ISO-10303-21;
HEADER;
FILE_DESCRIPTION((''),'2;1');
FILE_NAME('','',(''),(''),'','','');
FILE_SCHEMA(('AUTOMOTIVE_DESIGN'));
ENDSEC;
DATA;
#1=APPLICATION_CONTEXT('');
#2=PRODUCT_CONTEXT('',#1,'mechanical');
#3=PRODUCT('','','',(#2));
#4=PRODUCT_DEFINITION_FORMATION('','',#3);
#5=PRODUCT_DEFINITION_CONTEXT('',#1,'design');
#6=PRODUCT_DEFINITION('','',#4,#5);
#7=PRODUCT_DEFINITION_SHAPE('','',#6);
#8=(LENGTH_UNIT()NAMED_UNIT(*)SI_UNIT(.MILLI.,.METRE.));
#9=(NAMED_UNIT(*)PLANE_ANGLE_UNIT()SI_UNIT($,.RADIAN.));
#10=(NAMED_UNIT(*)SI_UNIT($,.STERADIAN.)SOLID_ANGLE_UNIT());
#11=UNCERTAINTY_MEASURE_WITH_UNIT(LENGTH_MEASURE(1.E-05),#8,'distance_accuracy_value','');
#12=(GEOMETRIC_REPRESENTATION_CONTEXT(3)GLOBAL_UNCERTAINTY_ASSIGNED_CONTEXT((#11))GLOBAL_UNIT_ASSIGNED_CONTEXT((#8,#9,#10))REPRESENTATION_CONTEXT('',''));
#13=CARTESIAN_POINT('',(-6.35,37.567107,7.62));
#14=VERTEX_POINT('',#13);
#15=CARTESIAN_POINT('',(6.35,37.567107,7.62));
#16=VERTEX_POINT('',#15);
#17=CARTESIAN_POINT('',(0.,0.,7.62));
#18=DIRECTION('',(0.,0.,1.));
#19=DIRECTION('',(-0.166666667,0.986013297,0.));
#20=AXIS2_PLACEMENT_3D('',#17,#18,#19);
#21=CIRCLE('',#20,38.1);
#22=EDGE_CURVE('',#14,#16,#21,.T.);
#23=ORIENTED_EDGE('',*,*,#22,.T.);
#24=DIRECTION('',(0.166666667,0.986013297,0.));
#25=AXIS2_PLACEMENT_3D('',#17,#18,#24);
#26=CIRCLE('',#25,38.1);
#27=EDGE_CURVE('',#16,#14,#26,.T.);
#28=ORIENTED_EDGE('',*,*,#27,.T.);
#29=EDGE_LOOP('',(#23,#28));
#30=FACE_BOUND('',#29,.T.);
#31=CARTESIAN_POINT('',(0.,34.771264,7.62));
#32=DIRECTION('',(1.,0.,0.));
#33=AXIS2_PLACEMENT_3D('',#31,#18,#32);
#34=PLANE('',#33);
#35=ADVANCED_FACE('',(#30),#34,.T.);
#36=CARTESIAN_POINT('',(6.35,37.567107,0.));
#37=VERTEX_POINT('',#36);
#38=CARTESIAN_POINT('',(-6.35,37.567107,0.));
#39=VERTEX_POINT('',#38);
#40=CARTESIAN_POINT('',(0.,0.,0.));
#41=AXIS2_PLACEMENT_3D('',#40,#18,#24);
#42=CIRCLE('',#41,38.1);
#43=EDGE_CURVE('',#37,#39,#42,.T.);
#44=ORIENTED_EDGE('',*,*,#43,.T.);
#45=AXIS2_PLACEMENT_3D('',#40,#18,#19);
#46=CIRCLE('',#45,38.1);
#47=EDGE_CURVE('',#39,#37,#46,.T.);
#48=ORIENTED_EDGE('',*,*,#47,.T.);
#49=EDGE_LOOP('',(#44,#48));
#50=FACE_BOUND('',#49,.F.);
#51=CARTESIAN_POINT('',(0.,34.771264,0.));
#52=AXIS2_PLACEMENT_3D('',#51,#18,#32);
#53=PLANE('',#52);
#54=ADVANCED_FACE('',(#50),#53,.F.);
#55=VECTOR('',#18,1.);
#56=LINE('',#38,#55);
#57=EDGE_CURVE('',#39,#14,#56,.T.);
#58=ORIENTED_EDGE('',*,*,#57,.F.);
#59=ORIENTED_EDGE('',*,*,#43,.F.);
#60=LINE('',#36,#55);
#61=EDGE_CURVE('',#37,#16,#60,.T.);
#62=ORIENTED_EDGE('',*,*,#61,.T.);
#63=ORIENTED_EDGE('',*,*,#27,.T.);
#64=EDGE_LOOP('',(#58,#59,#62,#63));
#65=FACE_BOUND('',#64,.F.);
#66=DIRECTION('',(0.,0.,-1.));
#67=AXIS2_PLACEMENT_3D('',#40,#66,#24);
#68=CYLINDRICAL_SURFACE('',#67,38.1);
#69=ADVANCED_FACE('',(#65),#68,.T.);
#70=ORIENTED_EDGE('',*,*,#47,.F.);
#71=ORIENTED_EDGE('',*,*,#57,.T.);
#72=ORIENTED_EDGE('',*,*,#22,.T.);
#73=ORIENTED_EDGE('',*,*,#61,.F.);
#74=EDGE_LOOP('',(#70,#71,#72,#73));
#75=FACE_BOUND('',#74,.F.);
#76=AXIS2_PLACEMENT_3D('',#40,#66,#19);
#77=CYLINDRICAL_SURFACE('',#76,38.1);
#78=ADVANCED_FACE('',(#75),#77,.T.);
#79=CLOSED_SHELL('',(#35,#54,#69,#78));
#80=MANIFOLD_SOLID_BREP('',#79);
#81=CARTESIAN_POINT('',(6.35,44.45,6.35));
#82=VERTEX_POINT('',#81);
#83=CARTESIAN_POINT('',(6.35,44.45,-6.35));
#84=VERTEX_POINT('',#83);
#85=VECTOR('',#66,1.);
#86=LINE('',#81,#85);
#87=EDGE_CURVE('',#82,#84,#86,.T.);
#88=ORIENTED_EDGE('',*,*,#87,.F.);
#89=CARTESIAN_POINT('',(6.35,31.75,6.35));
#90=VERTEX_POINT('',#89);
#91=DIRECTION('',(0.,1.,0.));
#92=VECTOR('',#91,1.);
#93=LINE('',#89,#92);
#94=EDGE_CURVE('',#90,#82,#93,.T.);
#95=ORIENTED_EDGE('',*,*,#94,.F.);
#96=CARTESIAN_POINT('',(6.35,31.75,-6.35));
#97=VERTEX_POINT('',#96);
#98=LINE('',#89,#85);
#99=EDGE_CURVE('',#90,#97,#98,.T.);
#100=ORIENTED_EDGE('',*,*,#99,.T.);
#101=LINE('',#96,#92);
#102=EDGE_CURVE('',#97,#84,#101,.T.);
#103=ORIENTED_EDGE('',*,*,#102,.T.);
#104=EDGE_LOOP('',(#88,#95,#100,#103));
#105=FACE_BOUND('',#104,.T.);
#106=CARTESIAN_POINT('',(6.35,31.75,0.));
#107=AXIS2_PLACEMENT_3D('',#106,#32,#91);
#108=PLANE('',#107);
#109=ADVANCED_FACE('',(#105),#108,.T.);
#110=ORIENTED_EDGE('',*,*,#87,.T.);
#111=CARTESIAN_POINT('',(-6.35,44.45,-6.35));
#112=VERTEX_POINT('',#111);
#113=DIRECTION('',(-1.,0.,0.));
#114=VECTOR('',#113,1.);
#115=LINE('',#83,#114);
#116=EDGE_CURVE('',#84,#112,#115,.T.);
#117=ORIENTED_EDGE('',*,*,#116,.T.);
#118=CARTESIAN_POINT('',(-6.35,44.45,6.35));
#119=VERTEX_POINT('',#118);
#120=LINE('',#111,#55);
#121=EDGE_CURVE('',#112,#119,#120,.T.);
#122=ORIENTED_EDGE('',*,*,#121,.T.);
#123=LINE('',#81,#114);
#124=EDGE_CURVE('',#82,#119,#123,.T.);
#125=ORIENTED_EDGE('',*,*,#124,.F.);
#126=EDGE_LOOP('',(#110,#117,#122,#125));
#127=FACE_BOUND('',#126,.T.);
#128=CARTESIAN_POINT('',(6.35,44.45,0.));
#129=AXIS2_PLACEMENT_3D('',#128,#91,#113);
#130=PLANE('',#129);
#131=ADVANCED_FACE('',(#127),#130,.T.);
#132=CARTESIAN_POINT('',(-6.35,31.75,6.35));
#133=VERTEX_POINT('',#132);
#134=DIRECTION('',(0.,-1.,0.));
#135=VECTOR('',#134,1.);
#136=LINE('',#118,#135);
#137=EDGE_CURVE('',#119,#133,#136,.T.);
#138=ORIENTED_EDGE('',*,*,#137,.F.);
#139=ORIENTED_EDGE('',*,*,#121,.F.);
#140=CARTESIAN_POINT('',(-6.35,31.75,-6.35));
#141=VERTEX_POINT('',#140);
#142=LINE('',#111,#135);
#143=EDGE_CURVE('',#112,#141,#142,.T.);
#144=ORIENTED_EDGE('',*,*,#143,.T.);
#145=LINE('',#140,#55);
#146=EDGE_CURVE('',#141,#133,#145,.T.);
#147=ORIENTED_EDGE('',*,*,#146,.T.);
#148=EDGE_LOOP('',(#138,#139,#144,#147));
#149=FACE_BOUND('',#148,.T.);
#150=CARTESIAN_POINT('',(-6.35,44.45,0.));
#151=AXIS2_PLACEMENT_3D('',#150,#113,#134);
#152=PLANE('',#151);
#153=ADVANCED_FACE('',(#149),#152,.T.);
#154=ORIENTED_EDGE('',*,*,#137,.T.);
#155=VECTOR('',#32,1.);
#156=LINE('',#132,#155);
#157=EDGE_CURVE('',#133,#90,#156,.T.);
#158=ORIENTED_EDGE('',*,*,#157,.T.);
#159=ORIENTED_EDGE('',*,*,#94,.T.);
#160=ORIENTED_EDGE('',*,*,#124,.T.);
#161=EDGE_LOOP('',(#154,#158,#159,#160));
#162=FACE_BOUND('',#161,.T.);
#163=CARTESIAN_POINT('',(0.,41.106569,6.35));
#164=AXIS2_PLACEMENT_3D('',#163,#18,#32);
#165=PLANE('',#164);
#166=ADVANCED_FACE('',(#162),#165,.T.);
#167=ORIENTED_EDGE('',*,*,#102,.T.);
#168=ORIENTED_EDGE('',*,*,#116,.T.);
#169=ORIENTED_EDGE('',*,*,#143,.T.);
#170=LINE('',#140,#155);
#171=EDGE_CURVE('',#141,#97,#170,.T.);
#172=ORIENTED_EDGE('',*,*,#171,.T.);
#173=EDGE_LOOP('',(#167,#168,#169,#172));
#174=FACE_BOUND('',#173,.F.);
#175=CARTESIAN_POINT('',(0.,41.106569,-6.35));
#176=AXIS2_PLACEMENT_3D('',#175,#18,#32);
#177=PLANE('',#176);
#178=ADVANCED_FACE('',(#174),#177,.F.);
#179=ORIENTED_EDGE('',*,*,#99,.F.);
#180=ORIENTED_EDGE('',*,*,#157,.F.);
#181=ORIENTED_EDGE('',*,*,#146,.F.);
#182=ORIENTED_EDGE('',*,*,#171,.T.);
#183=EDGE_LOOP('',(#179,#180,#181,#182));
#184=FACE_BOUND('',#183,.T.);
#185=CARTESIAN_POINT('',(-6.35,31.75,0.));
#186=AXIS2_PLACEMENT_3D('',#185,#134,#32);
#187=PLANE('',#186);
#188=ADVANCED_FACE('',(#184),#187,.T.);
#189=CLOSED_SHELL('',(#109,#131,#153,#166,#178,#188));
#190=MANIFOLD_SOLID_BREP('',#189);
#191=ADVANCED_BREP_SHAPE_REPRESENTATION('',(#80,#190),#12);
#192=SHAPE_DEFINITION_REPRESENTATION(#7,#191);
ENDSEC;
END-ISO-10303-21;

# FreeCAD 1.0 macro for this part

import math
import FreeCAD as App
import Part
import Sketcher

V = App.Vector
Q = App.Units.Quantity


def add_polygon(sketch, points):
    """Adds a closed chain of lines whose ends are joined by coincident constraints."""
    first, n = sketch.GeometryCount, len(points)
    for a, b in zip(points, points[1:] + points[:1]):
        sketch.addGeometry(Part.LineSegment(App.Vector(*a, 0), App.Vector(*b, 0)), False)
    for i in range(n):
        sketch.addConstraint(Sketcher.Constraint("Coincident", first + i, 2, first + (i + 1) % n, 1))

doc = App.newDocument("Part")
body = doc.addObject("PartDesign::Body", "Body")

sketch1 = body.newObject("Sketcher::SketchObject", "Sketch")
sketch1.AttachmentSupport = (doc.getObject("XY_Plane"), [""])
sketch1.MapMode = "FlatFace"
sketch1.addGeometry([
    Part.ArcOfCircle(Part.Circle(V(0, 0, 0), V(0, 0, 1), 38), math.radians(80.41), math.radians(99.59)),
    Part.ArcOfCircle(Part.Circle(V(0, 0, 0), V(0, 0, 1), 38), math.radians(100), math.radians(440)),
], False)
sketch1.addConstraint([
    Sketcher.Constraint("Tangent", 0, 1, 1, 2),
    Sketcher.Constraint("Coincident", 1, 1, 0, 2),
    Sketcher.Constraint("Coincident", 0, 3, -1, 1),
    Sketcher.Constraint("Horizontal", 0, 1, 1, 1),
    Sketcher.Constraint("Radius", 0, Q("1.5 in")),
    Sketcher.Constraint("DistanceX", 1, 1, 0, 1, Q("0.5 in")),
])
pad1 = body.newObject("PartDesign::Pad", "Pad")
pad1.Profile = sketch1
pad1.Length = Q("0.3 in")
body2 = doc.addObject("PartDesign::Body", "Body001")

sketch2 = body2.newObject("Sketcher::SketchObject", "Sketch001")
sketch2.AttachmentSupport = (doc.getObject("XY_Plane001"), [""])
sketch2.MapMode = "FlatFace"
add_polygon(sketch2, [(6, 44), (-6, 44), (-6, 32), (6, 32)])
sketch2.addConstraint([
    Sketcher.Constraint("Horizontal", 0),
    Sketcher.Constraint("Vertical", 1),
    Sketcher.Constraint("Horizontal", 2),
    Sketcher.Constraint("Vertical", 3),
    Sketcher.Constraint("Equal", 2, 1),
    Sketcher.Constraint("DistanceX", 0, 2, 0, 1, Q("0.5 in")),
    Sketcher.Constraint("DistanceX", 0, 2, -1, 1, Q("0.25 in")),
    Sketcher.Constraint("DistanceY", -1, 1, 0, 2, Q("1.75 in")),
])
pad2 = body2.newObject("PartDesign::Pad", "Pad001")
pad2.Profile = sketch2
pad2.Length = Q("0.5 in")
pad2.Midplane = True

doc.recompute()
